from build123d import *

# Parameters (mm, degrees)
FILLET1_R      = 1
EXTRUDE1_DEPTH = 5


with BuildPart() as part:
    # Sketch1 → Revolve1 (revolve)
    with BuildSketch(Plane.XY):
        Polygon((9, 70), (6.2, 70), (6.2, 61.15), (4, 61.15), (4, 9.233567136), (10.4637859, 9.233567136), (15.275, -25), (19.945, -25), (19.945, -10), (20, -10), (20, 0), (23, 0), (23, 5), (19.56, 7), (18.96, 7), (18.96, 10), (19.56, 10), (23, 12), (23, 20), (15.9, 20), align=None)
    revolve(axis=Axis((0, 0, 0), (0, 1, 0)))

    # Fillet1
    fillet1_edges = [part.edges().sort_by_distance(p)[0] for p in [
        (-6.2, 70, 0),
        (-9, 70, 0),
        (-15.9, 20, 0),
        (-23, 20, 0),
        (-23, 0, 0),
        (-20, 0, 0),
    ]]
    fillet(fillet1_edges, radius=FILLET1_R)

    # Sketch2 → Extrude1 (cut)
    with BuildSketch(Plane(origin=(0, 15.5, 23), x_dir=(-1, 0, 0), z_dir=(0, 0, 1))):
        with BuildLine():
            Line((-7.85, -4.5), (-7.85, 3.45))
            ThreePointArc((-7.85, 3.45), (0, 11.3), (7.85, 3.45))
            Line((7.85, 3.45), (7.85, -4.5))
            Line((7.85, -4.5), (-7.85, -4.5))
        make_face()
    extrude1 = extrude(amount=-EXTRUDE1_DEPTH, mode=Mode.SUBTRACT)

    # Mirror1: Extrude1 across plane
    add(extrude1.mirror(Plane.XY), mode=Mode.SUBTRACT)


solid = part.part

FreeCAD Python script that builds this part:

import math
import FreeCAD as App
import Part
import Sketcher
Q = App.Units.Quantity


def edges_at(feature, points):
    """Names of the edges that pass closest to the given points."""
    edges = feature.Shape.Edges
    near = lambda p: min(range(len(edges)), key=lambda i: edges[i].distToShape(Part.Vertex(*p))[0])
    return sorted({f"Edge{near(p) + 1}" for p in points})


def add_polygon(sketch, points):
    """Adds a closed chain of lines whose ends are joined by coincident constraints."""
    first, n = sketch.GeometryCount, len(points)
    for a, b in zip(points, points[1:] + points[:1]):
        sketch.addGeometry(Part.LineSegment(App.Vector(*a, 0), App.Vector(*b, 0)), False)
    for i in range(n):
        sketch.addConstraint(Sketcher.Constraint("Coincident", first + i, 2, first + (i + 1) % n, 1))

doc = App.newDocument("Part")
body = doc.addObject("PartDesign::Body", "Body")

# Sketch on XY plane
sketch1 = body.newObject("Sketcher::SketchObject", "Sketch")
sketch1.AttachmentSupport = (doc.getObject("XY_Plane"), [""])
sketch1.MapMode = "FlatFace"
add_polygon(sketch1, [(9, 70), (6.2, 70), (6.2, 61.15), (4, 61.15), (4, 9.233567), (10.463786, 9.233567), (15.275, -25), (19.945, -25), (19.945, -10), (20, -10), (20, 0), (23, 0), (23, 5), (19.56, 7), (18.96, 7), (18.96, 10), (19.56, 10), (23, 12), (23, 20), (15.9, 20)])  # lines 0-19
sketch1.addConstraint(Sketcher.Constraint("Horizontal", 0))
sketch1.addConstraint(Sketcher.Constraint("Vertical", 1))
sketch1.addConstraint(Sketcher.Constraint("Horizontal", 2))
sketch1.addConstraint(Sketcher.Constraint("Vertical", 3))
sketch1.addConstraint(Sketcher.Constraint("Horizontal", 4))
sketch1.addConstraint(Sketcher.Constraint("Horizontal", 6))
sketch1.addConstraint(Sketcher.Constraint("Vertical", 7))
sketch1.addConstraint(Sketcher.Constraint("Horizontal", 8))
sketch1.addConstraint(Sketcher.Constraint("Vertical", 9))
sketch1.addConstraint(Sketcher.Constraint("Horizontal", 10))
sketch1.addConstraint(Sketcher.Constraint("Vertical", 11))
sketch1.addConstraint(Sketcher.Constraint("Horizontal", 13))
sketch1.addConstraint(Sketcher.Constraint("Vertical", 14))
sketch1.addConstraint(Sketcher.Constraint("Horizontal", 15))
sketch1.addConstraint(Sketcher.Constraint("Vertical", 17))
sketch1.addConstraint(Sketcher.Constraint("Horizontal", 18))
sketch1.addConstraint(Sketcher.Constraint("PointOnObject", 9, 2, -1))
sketch1.addConstraint(Sketcher.Constraint("Vertical", 12, 2, 15, 2))
sketch1.addConstraint(Sketcher.Constraint("Vertical", 11, 2, 16, 2))
sketch1.addConstraint(Sketcher.Constraint("Equal", 10, 14))
sketch1.addConstraint(Sketcher.Constraint("Equal", 12, 16))
sketch1.addConstraint(Sketcher.Constraint("DistanceX", 10, 1, 10, 2, 3.0))
sketch1.addConstraint(Sketcher.Constraint("DistanceY", 7, 1, 7, 2, 15.0))
sketch1.addConstraint(Sketcher.Constraint("DistanceY", 9, 1, 9, 2, 10.0))
sketch1.addConstraint(Sketcher.Constraint("DistanceY", 11, 1, 11, 2, 5.0))
sketch1.addConstraint(Sketcher.Constraint("DistanceY", 17, 1, 17, 2, 8.0))
sketch1.addConstraint(Sketcher.Constraint("Angle", 5, Q("-82 deg")))
sketch1.addConstraint(Sketcher.Constraint("DistanceX", 0, 2, 0, 1, 2.8))
sketch1.addConstraint(Sketcher.Constraint("DistanceX", 2, 2, 2, 1, 2.2))
sketch1.addConstraint(Sketcher.Constraint("DistanceX", 13, 2, 13, 1, 0.6))
sketch1.addConstraint(Sketcher.Constraint("DistanceX", 18, 2, 18, 1, 7.1))
sketch1.addConstraint(Sketcher.Constraint("DistanceY", -1, 1, 0, 2, 70.0))
sketch1.addConstraint(Sketcher.Constraint("DistanceX", -1, 1, 2, 2, 4.0))
sketch1.addConstraint(Sketcher.Constraint("DistanceX", -1, 1, 8, 2, 20.0))
sketch1.addConstraint(Sketcher.Constraint("DistanceY", -1, 1, 12, 2, 7.0))
sketch1.addConstraint(Sketcher.Constraint("DistanceX", 6, 1, 6, 2, 4.67))
sketch1.addConstraint(Sketcher.Constraint("DistanceY", 1, 2, 1, 1, 8.85))
sketch1.addConstraint(Sketcher.Constraint("Distance", 5, 34.57))
sketch1.addConstraint(Sketcher.Constraint("DistanceX", 8, 1, 8, 2, 0.055))
sketch1.addConstraint(Sketcher.Constraint("DistanceX", -1, 1, 12, 2, 19.56))
revolution = body.newObject("PartDesign::Revolution", "Revolution")
revolution.Profile = sketch1
revolution.ReferenceAxis = (sketch1, ["V_Axis"])
revolution.Angle = 360
doc.recompute()

fillet = body.newObject("PartDesign::Fillet", "Fillet")
fillet.Base = (revolution, edges_at(revolution, [
    (-6.2, 70, 0),
    (-9, 70, 0),
    (-15.9, 20, 0),
    (-23, 20, 0),
    (-23, 0, 0),
    (-20, 0, 0),
]))
fillet.Radius = 1

# Sketch on XY plane
sketch2 = body.newObject("Sketcher::SketchObject", "Sketch001")
sketch2.AttachmentSupport = (doc.getObject("XY_Plane"), [""])
sketch2.MapMode = "FlatFace"
sketch2.AttachmentOffset = App.Placement(App.Vector(0, 0, 23), App.Rotation())
sketch2.addGeometry(Part.LineSegment(App.Vector(7.85, 12.05, 0), App.Vector(7.85, 20, 0)), False)
sketch2.addGeometry(Part.LineSegment(App.Vector(7.85, 20, 0), App.Vector(-7.85, 20, 0)), False)
sketch2.addGeometry(Part.LineSegment(App.Vector(-7.85, 20, 0), App.Vector(-7.85, 12.05, 0)), False)
sketch2.addGeometry(Part.ArcOfCircle(Part.Circle(App.Vector(0, 12.05, 0), App.Vector(0, 0, 1), 7.85), math.radians(180), math.radians(360)), False)
sketch2.addConstraint(Sketcher.Constraint("Coincident", 0, 2, 1, 1))
sketch2.addConstraint(Sketcher.Constraint("Coincident", 1, 2, 2, 1))
sketch2.addConstraint(Sketcher.Constraint("Tangent", 2, 2, 3, 1))
sketch2.addConstraint(Sketcher.Constraint("Tangent", 3, 2, 0, 1))
sketch2.addConstraint(Sketcher.Constraint("Vertical", 0))
sketch2.addConstraint(Sketcher.Constraint("Horizontal", 1))
sketch2.addConstraint(Sketcher.Constraint("Vertical", 2))
sketch2.addConstraint(Sketcher.Constraint("PointOnObject", 3, 3, -2))
sketch2.addConstraint(Sketcher.Constraint("Radius", 3, 7.85))
sketch2.addConstraint(Sketcher.Constraint("DistanceY", -1, 1, 0, 2, 20.0))
sketch2.addConstraint(Sketcher.Constraint("DistanceY", 0, 1, 0, 2, 7.95))
pocket1 = body.newObject("PartDesign::Pocket", "Pocket")
pocket1.Profile = sketch2
pocket1.Length = 5
doc.recompute()

mirrored = body.newObject("PartDesign::Mirrored", "Mirrored")
mirrored.Originals = [pocket1]
mirrored.MirrorPlane = (doc.getObject("XY_Plane"), [""])
body.Tip = mirrored

doc.recompute()
